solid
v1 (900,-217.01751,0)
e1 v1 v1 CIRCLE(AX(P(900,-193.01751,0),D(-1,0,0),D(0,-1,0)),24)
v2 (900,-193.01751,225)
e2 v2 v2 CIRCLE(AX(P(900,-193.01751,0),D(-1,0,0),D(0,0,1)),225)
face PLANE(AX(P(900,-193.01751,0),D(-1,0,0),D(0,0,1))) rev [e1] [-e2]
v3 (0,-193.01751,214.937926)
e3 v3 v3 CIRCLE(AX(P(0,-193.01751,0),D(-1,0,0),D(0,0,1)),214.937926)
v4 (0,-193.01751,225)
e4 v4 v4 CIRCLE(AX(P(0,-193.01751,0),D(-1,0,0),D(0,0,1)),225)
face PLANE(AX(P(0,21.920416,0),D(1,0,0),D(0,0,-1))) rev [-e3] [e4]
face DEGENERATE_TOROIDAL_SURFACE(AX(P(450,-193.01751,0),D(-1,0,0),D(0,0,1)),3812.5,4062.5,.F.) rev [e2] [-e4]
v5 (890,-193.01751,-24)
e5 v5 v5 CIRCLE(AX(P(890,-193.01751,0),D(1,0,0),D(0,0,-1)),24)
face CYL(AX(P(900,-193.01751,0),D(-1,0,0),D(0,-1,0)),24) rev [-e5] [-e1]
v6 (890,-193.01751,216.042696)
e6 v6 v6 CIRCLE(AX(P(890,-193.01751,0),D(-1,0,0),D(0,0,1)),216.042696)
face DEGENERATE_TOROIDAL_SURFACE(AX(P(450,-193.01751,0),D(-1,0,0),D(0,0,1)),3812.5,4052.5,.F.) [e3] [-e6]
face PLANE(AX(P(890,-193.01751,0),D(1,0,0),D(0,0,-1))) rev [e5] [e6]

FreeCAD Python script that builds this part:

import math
import FreeCAD as App
import Part
import Sketcher

doc = App.newDocument("Part")
body = doc.addObject("PartDesign::Body", "Body")

# Sketch on XY plane
sketch1 = doc.addObject("Sketcher::SketchObject", "Sketch")
body.addObject(sketch1)
sketch1.AttachmentSupport = (doc.XY_Plane, [""])
sketch1.MapMode = "FlatFace"
sketch1.addGeometry([
    Part.LineSegment(App.Vector(0, 32, 0), App.Vector(0, 22, 0)),  # 0
    Part.ArcOfCircle(Part.Circle(App.Vector(450, -4006, 0), App.Vector(0, 0, 1), 4052), math.radians(83.77), math.radians(96.38)),  # 1
    Part.LineSegment(App.Vector(890, 23, 0), App.Vector(890, -193, 0)),  # 2
    Part.LineSegment(App.Vector(890, -193, 0), App.Vector(900, -193, 0)),  # 3
    Part.LineSegment(App.Vector(900, -193, 0), App.Vector(900, 32, 0)),  # 4
    Part.ArcOfCircle(Part.Circle(App.Vector(450, -4006, 0), App.Vector(0, 0, 1), 4062), math.radians(83.64), math.radians(96.36)),  # 5
], False)
sketch1.addGeometry(Part.LineSegment(App.Vector(0, -193, 0), App.Vector(900, -193, 0)), True)  # axis
sketch1.addConstraint([
    Sketcher.Constraint("Coincident", 0, 2, 1, 2),
    Sketcher.Constraint("Coincident", 1, 1, 2, 1),
    Sketcher.Constraint("Coincident", 2, 2, 3, 1),
    Sketcher.Constraint("Coincident", 3, 2, 4, 1),
    Sketcher.Constraint("Coincident", 4, 2, 5, 1),
    Sketcher.Constraint("Coincident", 5, 2, 0, 1),
    Sketcher.Constraint("Vertical", 0),
    Sketcher.Constraint("Vertical", 2),
    Sketcher.Constraint("Horizontal", 3),
    Sketcher.Constraint("Vertical", 4),
    Sketcher.Constraint("Horizontal", 6),
    Sketcher.Constraint("Coincident", 5, 3, 1, 3),
    Sketcher.Constraint("Coincident", 6, 2, 3, 2),
    Sketcher.Constraint("PointOnObject", 0, 2, -2),
    Sketcher.Constraint("PointOnObject", 6, 1, -2),
    Sketcher.Constraint("Radius", 1, 4052.5),
    Sketcher.Constraint("Radius", 5, 4062.5),
    Sketcher.Constraint("DistanceX", 3, 1, 3, 2, 10.0),
    Sketcher.Constraint("DistanceX", 6, 1, 6, 2, 900.0),
    Sketcher.Constraint("DistanceY", 4, 1, 4, 2, 225.0),
    Sketcher.Constraint("DistanceX", -1, 1, 1, 3, 450.0),
    Sketcher.Constraint("DistanceY", 1, 3, -1, 1, 4005.51751),
])
revolution = doc.addObject("PartDesign::Revolution", "Revolution")
body.addObject(revolution)
revolution.Profile = sketch1
revolution.ReferenceAxis = (sketch1, ["Axis0"])
revolution.Angle = 360

# Sketch on YZ plane
sketch2 = doc.addObject("Sketcher::SketchObject", "Sketch001")
body.addObject(sketch2)
sketch2.AttachmentSupport = (doc.YZ_Plane, [""])
sketch2.MapMode = "FlatFace"
sketch2.addGeometry(Part.Circle(App.Vector(-193, 0, 0), App.Vector(0, 0, 1), 24), False)
sketch2.addConstraint([
    Sketcher.Constraint("PointOnObject", 0, 3, -1),
    Sketcher.Constraint("Diameter", 0, 48.0),
    Sketcher.Constraint("DistanceX", 0, 3, -1, 1, 193.01751),
])
pocket1 = doc.addObject("PartDesign::Pocket", "Pocket")
body.addObject(pocket1)
pocket1.Profile = sketch2
pocket1.Type = "ThroughAll"
pocket1.Reversed = True

doc.recompute()
